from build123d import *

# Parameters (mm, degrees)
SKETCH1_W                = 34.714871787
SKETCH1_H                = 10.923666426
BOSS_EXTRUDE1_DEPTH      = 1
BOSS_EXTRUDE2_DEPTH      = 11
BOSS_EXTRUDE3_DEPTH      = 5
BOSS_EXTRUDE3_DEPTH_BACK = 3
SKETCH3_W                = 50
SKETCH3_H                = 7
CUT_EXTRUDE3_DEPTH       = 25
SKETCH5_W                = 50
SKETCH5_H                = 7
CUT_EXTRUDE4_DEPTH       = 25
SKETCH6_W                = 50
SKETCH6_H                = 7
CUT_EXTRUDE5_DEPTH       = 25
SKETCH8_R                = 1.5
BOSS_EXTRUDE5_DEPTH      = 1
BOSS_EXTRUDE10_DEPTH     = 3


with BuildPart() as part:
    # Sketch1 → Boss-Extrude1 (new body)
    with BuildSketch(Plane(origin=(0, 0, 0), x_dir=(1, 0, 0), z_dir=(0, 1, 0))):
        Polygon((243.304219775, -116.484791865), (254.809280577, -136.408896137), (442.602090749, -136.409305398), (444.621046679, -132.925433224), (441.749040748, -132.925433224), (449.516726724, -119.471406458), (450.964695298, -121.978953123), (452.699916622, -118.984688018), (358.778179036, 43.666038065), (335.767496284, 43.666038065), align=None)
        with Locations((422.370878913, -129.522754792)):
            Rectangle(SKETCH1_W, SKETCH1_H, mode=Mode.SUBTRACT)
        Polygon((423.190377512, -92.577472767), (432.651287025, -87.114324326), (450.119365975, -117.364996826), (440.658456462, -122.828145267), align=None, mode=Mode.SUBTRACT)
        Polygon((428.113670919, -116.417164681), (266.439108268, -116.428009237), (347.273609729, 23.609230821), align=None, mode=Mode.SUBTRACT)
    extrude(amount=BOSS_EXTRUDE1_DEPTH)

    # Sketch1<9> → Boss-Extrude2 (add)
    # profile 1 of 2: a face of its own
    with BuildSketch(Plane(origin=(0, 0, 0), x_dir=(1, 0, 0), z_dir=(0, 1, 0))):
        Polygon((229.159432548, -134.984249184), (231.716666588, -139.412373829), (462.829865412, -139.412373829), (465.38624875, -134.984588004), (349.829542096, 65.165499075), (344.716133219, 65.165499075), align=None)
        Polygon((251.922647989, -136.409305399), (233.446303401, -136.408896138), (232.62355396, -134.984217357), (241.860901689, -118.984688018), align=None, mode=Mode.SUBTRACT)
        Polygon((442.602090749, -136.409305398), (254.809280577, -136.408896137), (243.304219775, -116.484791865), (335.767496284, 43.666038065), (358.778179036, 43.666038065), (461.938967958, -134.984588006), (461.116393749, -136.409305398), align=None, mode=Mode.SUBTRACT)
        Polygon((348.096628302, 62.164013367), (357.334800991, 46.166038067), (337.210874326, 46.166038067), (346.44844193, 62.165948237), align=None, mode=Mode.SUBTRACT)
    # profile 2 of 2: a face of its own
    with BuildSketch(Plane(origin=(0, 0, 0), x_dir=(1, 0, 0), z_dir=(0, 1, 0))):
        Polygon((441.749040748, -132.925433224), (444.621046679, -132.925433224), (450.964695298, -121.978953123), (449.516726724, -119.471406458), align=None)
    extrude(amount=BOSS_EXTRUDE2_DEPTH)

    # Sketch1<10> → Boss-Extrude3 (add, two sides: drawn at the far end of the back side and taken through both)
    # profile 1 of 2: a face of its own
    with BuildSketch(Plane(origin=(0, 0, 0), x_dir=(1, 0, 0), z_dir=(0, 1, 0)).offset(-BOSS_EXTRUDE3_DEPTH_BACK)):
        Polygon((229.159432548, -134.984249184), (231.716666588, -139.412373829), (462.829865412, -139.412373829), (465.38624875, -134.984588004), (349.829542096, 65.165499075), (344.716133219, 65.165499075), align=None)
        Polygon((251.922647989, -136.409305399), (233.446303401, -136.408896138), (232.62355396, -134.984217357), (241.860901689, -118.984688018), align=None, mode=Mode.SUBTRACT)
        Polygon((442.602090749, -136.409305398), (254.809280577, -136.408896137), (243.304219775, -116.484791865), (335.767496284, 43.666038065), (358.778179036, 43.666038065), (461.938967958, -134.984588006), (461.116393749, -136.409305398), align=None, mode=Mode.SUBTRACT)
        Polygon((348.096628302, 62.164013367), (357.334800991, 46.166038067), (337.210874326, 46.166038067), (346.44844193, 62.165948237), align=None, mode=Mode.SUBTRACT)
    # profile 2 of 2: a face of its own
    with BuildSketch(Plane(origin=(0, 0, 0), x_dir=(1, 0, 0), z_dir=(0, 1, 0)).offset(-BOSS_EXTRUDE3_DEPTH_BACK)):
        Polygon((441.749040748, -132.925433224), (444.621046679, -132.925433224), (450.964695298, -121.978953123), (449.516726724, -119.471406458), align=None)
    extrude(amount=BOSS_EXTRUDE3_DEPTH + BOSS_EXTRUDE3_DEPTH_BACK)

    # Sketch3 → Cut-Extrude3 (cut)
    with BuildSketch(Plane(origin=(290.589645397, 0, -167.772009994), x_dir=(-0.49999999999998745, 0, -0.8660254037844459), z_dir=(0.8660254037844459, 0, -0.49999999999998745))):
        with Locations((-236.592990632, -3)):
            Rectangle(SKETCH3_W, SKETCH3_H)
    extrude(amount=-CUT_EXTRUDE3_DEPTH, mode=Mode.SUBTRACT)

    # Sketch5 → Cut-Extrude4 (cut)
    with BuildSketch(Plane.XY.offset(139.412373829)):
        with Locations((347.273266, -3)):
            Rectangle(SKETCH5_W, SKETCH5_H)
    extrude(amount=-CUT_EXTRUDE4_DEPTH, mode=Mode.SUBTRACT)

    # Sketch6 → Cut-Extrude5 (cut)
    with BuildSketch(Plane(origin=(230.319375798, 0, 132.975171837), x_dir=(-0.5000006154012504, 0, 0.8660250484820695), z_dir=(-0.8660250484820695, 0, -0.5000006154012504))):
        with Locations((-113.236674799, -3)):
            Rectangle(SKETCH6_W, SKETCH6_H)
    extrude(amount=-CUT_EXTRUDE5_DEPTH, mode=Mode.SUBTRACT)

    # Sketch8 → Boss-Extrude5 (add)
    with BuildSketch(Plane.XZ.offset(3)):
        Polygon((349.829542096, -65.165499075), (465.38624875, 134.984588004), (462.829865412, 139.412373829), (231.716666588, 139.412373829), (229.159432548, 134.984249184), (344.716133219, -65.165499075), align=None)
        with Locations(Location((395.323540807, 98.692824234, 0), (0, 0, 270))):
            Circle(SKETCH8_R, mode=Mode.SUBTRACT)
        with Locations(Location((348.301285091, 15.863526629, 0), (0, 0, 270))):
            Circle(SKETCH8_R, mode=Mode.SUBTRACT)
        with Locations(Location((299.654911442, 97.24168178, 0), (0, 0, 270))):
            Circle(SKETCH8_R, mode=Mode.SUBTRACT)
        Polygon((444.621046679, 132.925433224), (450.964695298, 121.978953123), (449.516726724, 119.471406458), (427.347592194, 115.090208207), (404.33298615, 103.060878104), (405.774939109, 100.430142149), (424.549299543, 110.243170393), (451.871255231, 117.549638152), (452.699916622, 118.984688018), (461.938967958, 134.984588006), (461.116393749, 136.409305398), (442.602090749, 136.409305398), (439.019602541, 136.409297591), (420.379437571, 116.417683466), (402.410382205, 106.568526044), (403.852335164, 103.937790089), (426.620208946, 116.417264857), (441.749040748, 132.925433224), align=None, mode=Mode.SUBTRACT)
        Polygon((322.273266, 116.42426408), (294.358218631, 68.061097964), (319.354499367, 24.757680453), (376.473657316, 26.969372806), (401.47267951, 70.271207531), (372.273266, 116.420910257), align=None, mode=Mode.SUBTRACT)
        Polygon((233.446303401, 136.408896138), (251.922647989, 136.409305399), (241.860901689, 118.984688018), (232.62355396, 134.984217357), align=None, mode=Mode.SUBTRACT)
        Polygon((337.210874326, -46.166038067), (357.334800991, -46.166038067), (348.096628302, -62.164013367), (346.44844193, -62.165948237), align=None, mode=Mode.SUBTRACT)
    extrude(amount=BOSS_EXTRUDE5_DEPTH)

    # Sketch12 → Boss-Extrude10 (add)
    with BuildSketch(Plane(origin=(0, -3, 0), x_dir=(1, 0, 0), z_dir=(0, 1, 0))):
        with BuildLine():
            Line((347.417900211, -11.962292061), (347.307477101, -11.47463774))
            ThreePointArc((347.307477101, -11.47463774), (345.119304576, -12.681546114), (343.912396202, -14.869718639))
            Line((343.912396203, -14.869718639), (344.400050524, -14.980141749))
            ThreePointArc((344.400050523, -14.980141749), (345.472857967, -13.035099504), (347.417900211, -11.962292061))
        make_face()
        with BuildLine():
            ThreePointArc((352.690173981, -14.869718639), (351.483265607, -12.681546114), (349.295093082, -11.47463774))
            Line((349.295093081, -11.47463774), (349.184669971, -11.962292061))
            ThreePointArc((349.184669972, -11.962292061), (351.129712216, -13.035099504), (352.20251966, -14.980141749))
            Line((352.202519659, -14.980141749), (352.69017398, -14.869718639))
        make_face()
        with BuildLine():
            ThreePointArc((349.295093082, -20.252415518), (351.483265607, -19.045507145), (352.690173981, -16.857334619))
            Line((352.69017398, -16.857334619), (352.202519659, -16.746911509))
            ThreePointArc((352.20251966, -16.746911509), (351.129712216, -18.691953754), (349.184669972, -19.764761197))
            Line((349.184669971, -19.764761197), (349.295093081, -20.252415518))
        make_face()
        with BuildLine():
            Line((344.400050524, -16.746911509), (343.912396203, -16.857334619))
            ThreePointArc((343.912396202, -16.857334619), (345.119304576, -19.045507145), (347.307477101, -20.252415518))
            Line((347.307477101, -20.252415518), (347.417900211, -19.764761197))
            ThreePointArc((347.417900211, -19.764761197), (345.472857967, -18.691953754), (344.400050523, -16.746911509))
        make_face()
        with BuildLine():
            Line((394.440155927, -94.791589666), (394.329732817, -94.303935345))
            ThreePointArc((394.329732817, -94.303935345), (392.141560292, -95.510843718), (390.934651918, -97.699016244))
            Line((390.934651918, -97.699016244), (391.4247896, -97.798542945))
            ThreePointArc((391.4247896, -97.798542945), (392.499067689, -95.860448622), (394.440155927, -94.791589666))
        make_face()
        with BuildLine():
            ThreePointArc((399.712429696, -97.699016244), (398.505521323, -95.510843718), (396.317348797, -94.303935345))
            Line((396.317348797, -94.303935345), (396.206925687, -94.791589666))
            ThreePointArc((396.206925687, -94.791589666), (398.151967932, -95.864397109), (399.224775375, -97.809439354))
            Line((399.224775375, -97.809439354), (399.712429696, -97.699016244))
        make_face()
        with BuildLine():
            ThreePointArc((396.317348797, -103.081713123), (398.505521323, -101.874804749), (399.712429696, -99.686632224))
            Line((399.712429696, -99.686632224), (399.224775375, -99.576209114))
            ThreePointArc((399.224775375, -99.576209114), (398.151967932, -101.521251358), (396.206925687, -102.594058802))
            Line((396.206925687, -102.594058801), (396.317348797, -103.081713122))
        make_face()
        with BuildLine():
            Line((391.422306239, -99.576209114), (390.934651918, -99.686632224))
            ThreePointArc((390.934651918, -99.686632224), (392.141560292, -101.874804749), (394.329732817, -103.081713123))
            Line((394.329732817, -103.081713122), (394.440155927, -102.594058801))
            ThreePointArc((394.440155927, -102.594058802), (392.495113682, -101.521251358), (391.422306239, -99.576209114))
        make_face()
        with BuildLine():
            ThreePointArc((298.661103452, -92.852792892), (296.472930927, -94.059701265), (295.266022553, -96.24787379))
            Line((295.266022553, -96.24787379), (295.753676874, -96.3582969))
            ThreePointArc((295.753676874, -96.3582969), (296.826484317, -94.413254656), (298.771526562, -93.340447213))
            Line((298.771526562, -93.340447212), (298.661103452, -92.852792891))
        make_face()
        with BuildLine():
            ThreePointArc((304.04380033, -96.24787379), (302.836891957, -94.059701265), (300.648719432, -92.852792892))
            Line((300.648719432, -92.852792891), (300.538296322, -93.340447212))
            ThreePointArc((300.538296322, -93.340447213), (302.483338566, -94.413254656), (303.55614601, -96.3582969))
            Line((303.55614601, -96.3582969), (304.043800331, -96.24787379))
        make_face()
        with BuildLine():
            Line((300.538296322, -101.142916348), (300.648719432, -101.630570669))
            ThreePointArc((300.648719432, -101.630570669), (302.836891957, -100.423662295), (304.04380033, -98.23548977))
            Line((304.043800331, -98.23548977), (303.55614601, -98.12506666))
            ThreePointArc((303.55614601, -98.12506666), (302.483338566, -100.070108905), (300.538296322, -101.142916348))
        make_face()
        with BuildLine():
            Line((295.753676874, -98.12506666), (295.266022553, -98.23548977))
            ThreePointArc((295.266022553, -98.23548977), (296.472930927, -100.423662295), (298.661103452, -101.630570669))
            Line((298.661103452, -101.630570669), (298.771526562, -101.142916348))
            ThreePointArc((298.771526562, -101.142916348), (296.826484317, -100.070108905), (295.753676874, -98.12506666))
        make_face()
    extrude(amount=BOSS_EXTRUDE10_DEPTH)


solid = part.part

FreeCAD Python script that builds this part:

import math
import FreeCAD as App
import Part
import Sketcher
Q = App.Units.Quantity


def add_polygon(sketch, points):
    """Adds a closed chain of lines whose ends are joined by coincident constraints."""
    first, n = sketch.GeometryCount, len(points)
    for a, b in zip(points, points[1:] + points[:1]):
        sketch.addGeometry(Part.LineSegment(App.Vector(*a, 0), App.Vector(*b, 0)), False)
    for i in range(n):
        sketch.addConstraint(Sketcher.Constraint("Coincident", first + i, 2, first + (i + 1) % n, 1))

doc = App.newDocument("Part")
body = doc.addObject("PartDesign::Body", "Body")

# Sketch on XZ plane
sketch1 = doc.addObject("Sketcher::SketchObject", "Sketch")
body.addObject(sketch1)
sketch1.AttachmentSupport = (doc.XZ_Plane, [""])
sketch1.MapMode = "FlatFace"
add_polygon(sketch1, [(243.30422, 116.484792), (254.809281, 136.408896), (442.602091, 136.409305), (444.621047, 132.925433), (441.749041, 132.925433), (449.516727, 119.471406), (450.964695, 121.978953), (452.699917, 118.984688), (358.778179, -43.666038), (335.767496, -43.666038)])  # lines 0-9
add_polygon(sketch1, [(439.728315, 134.984588), (405.013443, 134.984588), (405.013443, 124.060922), (439.728315, 124.060922)])  # lines 10-13
add_polygon(sketch1, [(440.658456, 122.828145), (423.190378, 92.577473), (432.651287, 87.114324), (450.119366, 117.364997)])  # lines 14-17
add_polygon(sketch1, [(347.27361, -23.609231), (428.113671, 116.417165), (266.439108, 116.428009)])  # lines 18-20
sketch1.addConstraint([
    Sketcher.Constraint("Horizontal", 3),
    Sketcher.Constraint("Horizontal", 8),
    Sketcher.Constraint("Horizontal", 10),
    Sketcher.Constraint("Vertical", 11),
    Sketcher.Constraint("Horizontal", 12),
    Sketcher.Constraint("Vertical", 13),
    Sketcher.Constraint("Parallel", 0, 5),
    Sketcher.Constraint("Parallel", 2, 6),
    Sketcher.Constraint("Parallel", 5, 7),
    Sketcher.Constraint("Parallel", 4, 9),
    Sketcher.Constraint("Parallel", 7, 14),
    Sketcher.Constraint("Perpendicular", 14, 15),
    Sketcher.Constraint("Perpendicular", 15, 16),
    Sketcher.Constraint("Perpendicular", 16, 17),
    Sketcher.Constraint("Angle", 4, Q("-60 deg")),
    Sketcher.Constraint("DistanceX", 10, 2, 10, 1, 34.714872),
    Sketcher.Constraint("DistanceY", 4, 2, 1, 2, 16.937899),
    Sketcher.Constraint("DistanceX", 8, 2, 5, 2, 115.197199),
    Sketcher.Constraint("Distance", 0, 23.007311),
    Sketcher.Constraint("Distance", 1, 187.79281),
    Sketcher.Constraint("Distance", 4, 15.535372),
    Sketcher.Constraint("Distance", 7, 187.82053),
    Sketcher.Constraint("Distance", 14, 34.93189),
    Sketcher.Constraint("Distance", 20, 161.693059),
    Sketcher.Constraint("DistanceX", 3, 2, 3, 1, 2.872006),
    Sketcher.Constraint("DistanceX", 8, 2, 8, 1, 23.010683),
    Sketcher.Constraint("DistanceY", 11, 2, 11, 1, 10.923666),
    Sketcher.Constraint("DistanceX", -1, 1, 0, 2, 254.809281),
    Sketcher.Constraint("DistanceX", -1, 1, 3, 2, 441.749041),
    Sketcher.Constraint("DistanceY", -1, 1, 6, 2, 118.984688),
    Sketcher.Constraint("DistanceX", -1, 1, 7, 2, 358.778179),
    Sketcher.Constraint("DistanceY", 7, 2, -1, 1, 43.666038),
    Sketcher.Constraint("DistanceY", -1, 1, 10, 2, 134.984588),
    Sketcher.Constraint("DistanceX", -1, 1, 18, 2, 428.113671),
    Sketcher.Constraint("DistanceX", -1, 1, 19, 2, 266.439108),
    Sketcher.Constraint("DistanceY", -1, 1, 19, 2, 116.428009),
    Sketcher.Constraint("DistanceX", -1, 1, 20, 2, 347.27361),
    Sketcher.Constraint("DistanceX", 12, 2, 2, 2, 4.892732),
    Sketcher.Constraint("DistanceY", 14, 2, 12, 2, 31.483449),
    Sketcher.Constraint("DistanceX", 14, 2, 4, 2, 26.326349),
    Sketcher.Constraint("DistanceX", 14, 2, 15, 2, 9.46091),
    Sketcher.Constraint("DistanceY", 18, 2, 17, 2, 6.410981),
])
pad1 = doc.addObject("PartDesign::Pad", "Pad")
body.addObject(pad1)
pad1.Profile = sketch1
pad1.Length = 1
pad1.Reversed = True

# Sketch on XZ plane
sketch2 = doc.addObject("Sketcher::SketchObject", "Sketch001")
body.addObject(sketch2)
sketch2.AttachmentSupport = (doc.XZ_Plane, [""])
sketch2.MapMode = "FlatFace"
add_polygon(sketch2, [(229.159433, 134.984249), (231.716667, 139.412374), (462.829865, 139.412374), (465.386249, 134.984588), (349.829542, -65.165499), (344.716133, -65.165499)])  # lines 0-5
add_polygon(sketch2, [(241.860902, 118.984688), (251.922648, 136.409305), (233.446303, 136.408896), (232.623554, 134.984217)])  # lines 6-9
add_polygon(sketch2, [(461.116394, 136.409305), (442.602091, 136.409305), (254.809281, 136.408896), (243.30422, 116.484792), (335.767496, -43.666038), (358.778179, -43.666038), (461.938968, 134.984588)])  # lines 10-16
add_polygon(sketch2, [(346.448442, -62.165948), (348.096628, -62.164013), (357.334801, -46.166038), (337.210874, -46.166038)])  # lines 17-20
add_polygon(sketch2, [(441.749041, 132.925433), (444.621047, 132.925433), (450.964695, 121.978953), (449.516727, 119.471406)])  # lines 21-24
sketch2.addConstraint([
    Sketcher.Constraint("Horizontal", 1),
    Sketcher.Constraint("Horizontal", 4),
    Sketcher.Constraint("Horizontal", 10),
    Sketcher.Constraint("Horizontal", 14),
    Sketcher.Constraint("Horizontal", 19),
    Sketcher.Constraint("Horizontal", 21),
    Sketcher.Constraint("DistanceY", 18, 2, 14, 2, 2.5),
    Sketcher.Constraint("DistanceX", 1, 1, 1, 2, 231.113199),
    Sketcher.Constraint("DistanceX", 4, 2, 4, 1, 5.113409),
    Sketcher.Constraint("DistanceY", 3, 2, -1, 1, 65.165499),
    Sketcher.Constraint("DistanceX", -1, 1, 9, 2, 241.860902),
    Sketcher.Constraint("DistanceX", -1, 1, 18, 2, 357.334801),
    Sketcher.Constraint("DistanceX", 5, 2, 4, 2, 115.556701),
    Sketcher.Constraint("DistanceX", 6, 2, 2, 2, 213.463601),
    Sketcher.Constraint("DistanceX", 7, 2, 9, 2, 8.414598),
    Sketcher.Constraint("DistanceX", 20, 2, 3, 2, 3.3811),
    Sketcher.Constraint("DistanceX", 22, 2, 16, 2, 10.151698),
    Sketcher.Constraint("DistanceY", 23, 2, 10, 2, 16.937899),
    Sketcher.Constraint("Distance", 11, 187.79281),
    Sketcher.Constraint("Distance", 12, 23.007311),
    Sketcher.Constraint("Distance", 16, 1.645129),
    Sketcher.Constraint("Distance", 18, 18.473739),
    Sketcher.Constraint("Distance", 22, 12.651771),
    Sketcher.Constraint("Distance", 24, 15.535372),
    Sketcher.Constraint("DistanceX", 10, 2, 10, 1, 18.514303),
    Sketcher.Constraint("DistanceX", 14, 1, 14, 2, 23.010683),
    Sketcher.Constraint("DistanceX", 19, 2, 19, 1, 20.123927),
    Sketcher.Constraint("DistanceX", 21, 1, 21, 2, 2.872006),
    Sketcher.Constraint("DistanceX", -1, 1, 2, 2, 465.386249),
    Sketcher.Constraint("DistanceY", -1, 1, 2, 2, 134.984588),
    Sketcher.Constraint("DistanceY", -1, 1, 5, 2, 134.984249),
    Sketcher.Constraint("DistanceY", -1, 1, 9, 2, 118.984688),
    Sketcher.Constraint("DistanceX", -1, 1, 10, 2, 442.602091),
    Sketcher.Constraint("DistanceX", -1, 1, 12, 2, 243.30422),
    Sketcher.Constraint("DistanceY", -1, 1, 12, 2, 116.484792),
    Sketcher.Constraint("DistanceY", 13, 2, -1, 1, 43.666038),
    Sketcher.Constraint("DistanceX", -1, 1, 14, 2, 358.778179),
    Sketcher.Constraint("DistanceY", -1, 1, 15, 2, 134.984588),
    Sketcher.Constraint("DistanceX", -1, 1, 17, 2, 348.096628),
    Sketcher.Constraint("DistanceX", -1, 1, 20, 2, 346.448442),
    Sketcher.Constraint("DistanceY", 20, 2, -1, 1, 62.165948),
    Sketcher.Constraint("DistanceX", -1, 1, 24, 2, 441.749041),
    Sketcher.Constraint("DistanceX", 0, 2, 6, 2, 20.205981),
    Sketcher.Constraint("DistanceY", 6, 2, 0, 2, 3.003068),
    Sketcher.Constraint("DistanceY", 7, 2, 6, 2, 0.000409),
    Sketcher.Constraint("DistanceX", 8, 2, 7, 2, 0.822749),
    Sketcher.Constraint("DistanceY", 8, 2, 7, 2, 1.424679),
    Sketcher.Constraint("DistanceY", 9, 2, 8, 2, 15.999529),
    Sketcher.Constraint("DistanceY", 10, 2, 1, 2, 3.003068),
    Sketcher.Constraint("DistanceY", 21, 2, 1, 2, 6.486941),
])
pad2 = doc.addObject("PartDesign::Pad", "Pad001")
body.addObject(pad2)
pad2.Profile = sketch2
pad2.Length = 11
pad2.Reversed = True

# Sketch on XZ plane
sketch3 = doc.addObject("Sketcher::SketchObject", "Sketch002")
body.addObject(sketch3)
sketch3.AttachmentSupport = (doc.XZ_Plane, [""])
sketch3.MapMode = "FlatFace"
add_polygon(sketch3, [(229.159433, 134.984249), (231.716667, 139.412374), (462.829865, 139.412374), (465.386249, 134.984588), (349.829542, -65.165499), (344.716133, -65.165499)])  # lines 0-5
add_polygon(sketch3, [(241.860902, 118.984688), (251.922648, 136.409305), (233.446303, 136.408896), (232.623554, 134.984217)])  # lines 6-9
add_polygon(sketch3, [(461.116394, 136.409305), (442.602091, 136.409305), (254.809281, 136.408896), (243.30422, 116.484792), (335.767496, -43.666038), (358.778179, -43.666038), (461.938968, 134.984588)])  # lines 10-16
add_polygon(sketch3, [(346.448442, -62.165948), (348.096628, -62.164013), (357.334801, -46.166038), (337.210874, -46.166038)])  # lines 17-20
add_polygon(sketch3, [(441.749041, 132.925433), (444.621047, 132.925433), (450.964695, 121.978953), (449.516727, 119.471406)])  # lines 21-24
sketch3.addConstraint([
    Sketcher.Constraint("Horizontal", 1),
    Sketcher.Constraint("Horizontal", 4),
    Sketcher.Constraint("Horizontal", 10),
    Sketcher.Constraint("Horizontal", 14),
    Sketcher.Constraint("Horizontal", 19),
    Sketcher.Constraint("Horizontal", 21),
    Sketcher.Constraint("DistanceY", 18, 2, 14, 2, 2.5),
    Sketcher.Constraint("DistanceX", 1, 1, 1, 2, 231.113199),
    Sketcher.Constraint("DistanceX", 4, 2, 4, 1, 5.113409),
    Sketcher.Constraint("DistanceY", 3, 2, -1, 1, 65.165499),
    Sketcher.Constraint("DistanceX", -1, 1, 9, 2, 241.860902),
    Sketcher.Constraint("DistanceX", -1, 1, 18, 2, 357.334801),
    Sketcher.Constraint("DistanceX", 5, 2, 4, 2, 115.556701),
    Sketcher.Constraint("DistanceX", 6, 2, 2, 2, 213.463601),
    Sketcher.Constraint("DistanceX", 7, 2, 9, 2, 8.414598),
    Sketcher.Constraint("DistanceX", 20, 2, 3, 2, 3.3811),
    Sketcher.Constraint("DistanceX", 22, 2, 16, 2, 10.151698),
    Sketcher.Constraint("DistanceY", 23, 2, 10, 2, 16.937899),
    Sketcher.Constraint("Distance", 11, 187.79281),
    Sketcher.Constraint("Distance", 12, 23.007311),
    Sketcher.Constraint("Distance", 16, 1.645129),
    Sketcher.Constraint("Distance", 18, 18.473739),
    Sketcher.Constraint("Distance", 22, 12.651771),
    Sketcher.Constraint("Distance", 24, 15.535372),
    Sketcher.Constraint("DistanceX", 10, 2, 10, 1, 18.514303),
    Sketcher.Constraint("DistanceX", 14, 1, 14, 2, 23.010683),
    Sketcher.Constraint("DistanceX", 19, 2, 19, 1, 20.123927),
    Sketcher.Constraint("DistanceX", 21, 1, 21, 2, 2.872006),
    Sketcher.Constraint("DistanceX", -1, 1, 2, 2, 465.386249),
    Sketcher.Constraint("DistanceY", -1, 1, 2, 2, 134.984588),
    Sketcher.Constraint("DistanceY", -1, 1, 5, 2, 134.984249),
    Sketcher.Constraint("DistanceY", -1, 1, 9, 2, 118.984688),
    Sketcher.Constraint("DistanceX", -1, 1, 10, 2, 442.602091),
    Sketcher.Constraint("DistanceX", -1, 1, 12, 2, 243.30422),
    Sketcher.Constraint("DistanceY", -1, 1, 12, 2, 116.484792),
    Sketcher.Constraint("DistanceY", 13, 2, -1, 1, 43.666038),
    Sketcher.Constraint("DistanceX", -1, 1, 14, 2, 358.778179),
    Sketcher.Constraint("DistanceY", -1, 1, 15, 2, 134.984588),
    Sketcher.Constraint("DistanceX", -1, 1, 17, 2, 348.096628),
    Sketcher.Constraint("DistanceX", -1, 1, 20, 2, 346.448442),
    Sketcher.Constraint("DistanceY", 20, 2, -1, 1, 62.165948),
    Sketcher.Constraint("DistanceX", -1, 1, 24, 2, 441.749041),
    Sketcher.Constraint("DistanceX", 0, 2, 6, 2, 20.205981),
    Sketcher.Constraint("DistanceY", 6, 2, 0, 2, 3.003068),
    Sketcher.Constraint("DistanceY", 7, 2, 6, 2, 0.000409),
    Sketcher.Constraint("DistanceX", 8, 2, 7, 2, 0.822749),
    Sketcher.Constraint("DistanceY", 8, 2, 7, 2, 1.424679),
    Sketcher.Constraint("DistanceY", 9, 2, 8, 2, 15.999529),
    Sketcher.Constraint("DistanceY", 10, 2, 1, 2, 3.003068),
    Sketcher.Constraint("DistanceY", 21, 2, 1, 2, 6.486941),
])
pad3 = doc.addObject("PartDesign::Pad", "Pad002")
body.addObject(pad3)
pad3.Profile = sketch3
pad3.Type = "TwoLengths"
pad3.Length = 5
pad3.Length2 = 3
pad3.Reversed = True

# Sketch on an angled plane
sketch4 = doc.addObject("Sketcher::SketchObject", "Sketch003")
body.addObject(sketch4)
sketch4.Placement = App.Placement(App.Vector(290.589645, 0, -167.77201), App.Rotation(App.Vector(-0.5, 0, -0.866025404), App.Vector(0, 1, 0), App.Vector(0.866025404, 0, -0.5), "ZXY"))
add_polygon(sketch4, [(-262, 0), (-262, -7), (-212, -7), (-212, 0)])  # lines 0-3
sketch4.addConstraint([
    Sketcher.Constraint("Vertical", 0),
    Sketcher.Constraint("Horizontal", 1),
    Sketcher.Constraint("Vertical", 2),
    Sketcher.Constraint("Horizontal", 3),
    Sketcher.Constraint("DistanceX", 1, 1, 1, 2, 50.0),
    Sketcher.Constraint("DistanceY", 0, 2, 0, 1, 7.0),
    Sketcher.Constraint("DistanceY", 0, 2, -1, 1, 6.5),
    Sketcher.Constraint("DistanceX", 0, 2, -1, 1, 261.592991),
])
pocket1 = doc.addObject("PartDesign::Pocket", "Pocket")
body.addObject(pocket1)
pocket1.Profile = sketch4
pocket1.Length = 25

# Sketch on XY plane
sketch5 = doc.addObject("Sketcher::SketchObject", "Sketch004")
body.addObject(sketch5)
sketch5.AttachmentSupport = (doc.XY_Plane, [""])
sketch5.MapMode = "FlatFace"
sketch5.AttachmentOffset = App.Placement(App.Vector(0, 0, 139.412374), App.Rotation())
add_polygon(sketch5, [(322, 0), (322, -6), (372, -6), (372, 0)])  # lines 0-3
sketch5.addConstraint([
    Sketcher.Constraint("Vertical", 0),
    Sketcher.Constraint("Horizontal", 1),
    Sketcher.Constraint("Vertical", 2),
    Sketcher.Constraint("Horizontal", 3),
    Sketcher.Constraint("DistanceX", 1, 1, 1, 2, 50.0),
    Sketcher.Constraint("DistanceY", 0, 2, 0, 1, 7.0),
    Sketcher.Constraint("DistanceY", 0, 2, -1, 1, 6.5),
    Sketcher.Constraint("DistanceX", -1, 1, 0, 2, 322.273266),
])
pocket2 = doc.addObject("PartDesign::Pocket", "Pocket001")
body.addObject(pocket2)
pocket2.Profile = sketch5
pocket2.Length = 25

# Sketch on an angled plane
sketch6 = doc.addObject("Sketcher::SketchObject", "Sketch005")
body.addObject(sketch6)
sketch6.Placement = App.Placement(App.Vector(230.319376, 0, 132.975172), App.Rotation(App.Vector(-0.500000615, 0, 0.866025048), App.Vector(0, 0.999999999, 0), App.Vector(-0.866025048, 0, -0.500000615), "ZXY"))
add_polygon(sketch6, [(-138, 0), (-138, -6), (-88, -6), (-88, 0)])  # lines 0-3
sketch6.addConstraint([
    Sketcher.Constraint("Vertical", 0),
    Sketcher.Constraint("Horizontal", 1),
    Sketcher.Constraint("Vertical", 2),
    Sketcher.Constraint("Horizontal", 3),
    Sketcher.Constraint("DistanceX", 1, 1, 1, 2, 50.0),
    Sketcher.Constraint("DistanceY", 0, 2, 0, 1, 7.0),
    Sketcher.Constraint("DistanceY", 0, 2, -1, 1, 6.5),
    Sketcher.Constraint("DistanceX", 0, 2, -1, 1, 138.236675),
])
pocket3 = doc.addObject("PartDesign::Pocket", "Pocket002")
body.addObject(pocket3)
pocket3.Profile = sketch6
pocket3.Length = 25

# Sketch on XZ plane
sketch7 = doc.addObject("Sketcher::SketchObject", "Sketch006")
body.addObject(sketch7)
sketch7.AttachmentSupport = (doc.XZ_Plane, [""])
sketch7.MapMode = "FlatFace"
sketch7.AttachmentOffset = App.Placement(App.Vector(0, 0, 3), App.Rotation())
add_polygon(sketch7, [(349.829542, -65.165499), (465.386249, 134.984588), (462.829865, 139.412374), (231.716667, 139.412374), (229.159433, 134.984249), (344.716133, -65.165499)])  # lines 0-5
add_polygon(sketch7, [(346.448442, -62.165948), (337.210874, -46.166038), (357.334801, -46.166038), (348.096628, -62.164013)])  # lines 6-9
sketch7.addGeometry(Part.Circle(App.Vector(348.301285, 15.863527, 0), App.Vector(0, 0, 1), 1.5), False)  # 10
add_polygon(sketch7, [(232.623554, 134.984217), (233.446303, 136.408896), (251.922648, 136.409305), (241.860902, 118.984688)])  # lines 11-14
sketch7.addGeometry(Part.Circle(App.Vector(299.654911, 97.241682, 0), App.Vector(0, 0, 1), 1.5), False)  # 15
add_polygon(sketch7, [(294.358219, 68.061098), (322.273266, 116.424264), (372.273266, 116.42091), (401.47268, 70.271208), (376.473657, 26.969373), (319.354499, 24.75768)])  # lines 16-21
sketch7.addGeometry(Part.Circle(App.Vector(395.323541, 98.692824, 0), App.Vector(0, 0, 1), 1.5), False)  # 22
add_polygon(sketch7, [(450.964695, 121.978953), (444.621047, 132.925433), (441.749041, 132.925433), (426.620209, 116.417265), (403.852335, 103.93779), (402.410382, 106.568526), (420.379438, 116.417683), (439.019603, 136.409298), (442.602091, 136.409305), (461.116394, 136.409305), (461.938968, 134.984588), (452.699917, 118.984688), (451.871255, 117.549638), (424.5493, 110.24317), (405.774939, 100.430142), (404.332986, 103.060878), (427.347592, 115.090208), (449.516727, 119.471406)])  # lines 23-40
sketch7.addConstraint([
    Sketcher.Constraint("Horizontal", 2),
    Sketcher.Constraint("Horizontal", 5),
    Sketcher.Constraint("Horizontal", 7),
    Sketcher.Constraint("Horizontal", 24),
    Sketcher.Constraint("Horizontal", 31),
    Sketcher.Constraint("Diameter", 10, 3.0),
    Sketcher.Constraint("Diameter", 15, 3.0),
    Sketcher.Constraint("Diameter", 22, 3.0),
    Sketcher.Constraint("Distance", 17, 50.0),
    Sketcher.Constraint("Distance", 19, 50.0),
    Sketcher.Constraint("Distance", 21, 50.0),
    Sketcher.Constraint("Distance", 27, 3.0),
    Sketcher.Constraint("Distance", 37, 3.0),
    Sketcher.Constraint("DistanceX", 2, 2, 2, 1, 231.113199),
    Sketcher.Constraint("DistanceX", 5, 2, 22, 3, 45.493999),
    Sketcher.Constraint("DistanceY", 20, 2, 15, 3, 72.484001),
    Sketcher.Constraint("DistanceX", 5, 1, 5, 2, 5.113409),
    Sketcher.Constraint("DistanceY", 4, 2, -1, 1, 65.165499),
    Sketcher.Constraint("DistanceX", -1, 1, 7, 2, 357.334801),
    Sketcher.Constraint("DistanceX", -1, 1, 13, 2, 241.860902),
    Sketcher.Constraint("DistanceX", -1, 1, 20, 2, 319.354499),
    Sketcher.Constraint("DistanceX", -1, 1, 35, 2, 424.5493),
    Sketcher.Constraint("DistanceX", 3, 2, 4, 2, 115.556701),
    Sketcher.Constraint("DistanceX", 9, 2, 5, 2, 3.3811),
    Sketcher.Constraint("DistanceX", 11, 2, 13, 2, 8.414598),
    Sketcher.Constraint("DistanceX", 17, 2, 1, 2, 90.556599),
    Sketcher.Constraint("DistanceX", 22, 3, 24, 2, 46.4255),
    Sketcher.Constraint("DistanceY", 22, 3, 27, 2, 7.875702),
    Sketcher.Constraint("DistanceY", 33, 2, 32, 2, 15.9999),
    Sketcher.Constraint("DistanceX", 22, 3, 36, 2, 10.451398),
    Sketcher.Constraint("DistanceX", 36, 2, 28, 2, 14.604498),
    Sketcher.Constraint("DistanceY", 39, 2, 30, 2, 16.937899),
    Sketcher.Constraint("Distance", 8, 18.473739),
    Sketcher.Constraint("Distance", 18, 54.611362),
    Sketcher.Constraint("Distance", 20, 57.161961),
    Sketcher.Constraint("Distance", 23, 12.651771),
    Sketcher.Constraint("Distance", 25, 22.391989),
    Sketcher.Constraint("Distance", 30, 3.582488),
    Sketcher.Constraint("Distance", 32, 1.645129),
    Sketcher.Constraint("Distance", 34, 1.65712),
    Sketcher.Constraint("Distance", 35, 28.282039),
    Sketcher.Constraint("DistanceX", 7, 1, 7, 2, 20.123927),
    Sketcher.Constraint("DistanceX", 24, 2, 24, 1, 2.872006),
    Sketcher.Constraint("DistanceX", 31, 1, 31, 2, 18.514303),
    Sketcher.Constraint("DistanceX", -1, 1, 15, 3, 299.654911),
    Sketcher.Constraint("DistanceY", -1, 1, 15, 3, 97.241682),
    Sketcher.Constraint("DistanceX", -1, 1, 22, 3, 395.323541),
    Sketcher.Constraint("DistanceX", -1, 1, 0, 2, 465.386249),
    Sketcher.Constraint("DistanceY", -1, 1, 0, 2, 134.984588),
    Sketcher.Constraint("DistanceY", -1, 1, 3, 2, 134.984249),
    Sketcher.Constraint("DistanceY", 6, 2, -1, 1, 46.166038),
    Sketcher.Constraint("DistanceX", -1, 1, 8, 2, 348.096628),
    Sketcher.Constraint("DistanceY", 9, 2, -1, 1, 62.165948),
    Sketcher.Constraint("DistanceY", -1, 1, 13, 2, 118.984688),
    Sketcher.Constraint("DistanceY", -1, 1, 17, 2, 116.42091),
    Sketcher.Constraint("DistanceX", -1, 1, 18, 2, 401.47268),
    Sketcher.Constraint("DistanceX", -1, 1, 21, 2, 294.358219),
    Sketcher.Constraint("DistanceX", -1, 1, 25, 2, 426.620209),
    Sketcher.Constraint("DistanceY", -1, 1, 26, 2, 103.93779),
    Sketcher.Constraint("DistanceX", -1, 1, 30, 2, 442.602091),
    Sketcher.Constraint("DistanceY", -1, 1, 32, 2, 134.984588),
    Sketcher.Constraint("DistanceY", -1, 1, 34, 2, 117.549638),
    Sketcher.Constraint("DistanceY", -1, 1, 35, 2, 110.24317),
    Sketcher.Constraint("DistanceY", -1, 1, 37, 2, 103.060878),
    Sketcher.Constraint("DistanceY", -1, 1, 38, 2, 115.090208),
    Sketcher.Constraint("DistanceY", 10, 3, 0, 2, 119.121061),
    Sketcher.Constraint("DistanceY", 22, 3, 1, 2, 40.71955),
    Sketcher.Constraint("DistanceX", 10, 3, 1, 2, 114.52858),
    Sketcher.Constraint("DistanceX", 4, 2, 10, 3, 3.585152),
    Sketcher.Constraint("DistanceY", 22, 3, 11, 2, 37.716072),
    Sketcher.Constraint("DistanceY", 10, 3, 11, 2, 120.54537),
    Sketcher.Constraint("DistanceY", 11, 2, 12, 2, 0.000409),
    Sketcher.Constraint("DistanceX", 2, 2, 12, 2, 20.205981),
    Sketcher.Constraint("DistanceX", 14, 2, 11, 2, 0.822749),
    Sketcher.Constraint("DistanceY", 14, 2, 11, 2, 1.424679),
    Sketcher.Constraint("DistanceY", 16, 2, 12, 2, 19.985041),
    Sketcher.Constraint("DistanceY", 23, 2, 1, 2, 6.486941),
    Sketcher.Constraint("DistanceX", 17, 2, 26, 2, 31.579069),
    Sketcher.Constraint("DistanceY", 25, 2, 28, 2, 0.000419),
    Sketcher.Constraint("DistanceY", 0, 2, 29, 2, 1.42471),
    Sketcher.Constraint("DistanceY", 30, 2, 1, 2, 3.003068),
    Sketcher.Constraint("DistanceY", 36, 2, 35, 2, 9.813028),
    Sketcher.Constraint("DistanceX", 38, 2, 24, 2, 14.401449),
    Sketcher.Constraint("DistanceX", 39, 2, 34, 2, 2.354529),
    Sketcher.Constraint("DistanceX", 39, 2, 40, 2, 1.447969),
])
pad4 = doc.addObject("PartDesign::Pad", "Pad003")
body.addObject(pad4)
pad4.Profile = sketch7
pad4.Length = 1

# Sketch on XZ plane
sketch8 = doc.addObject("Sketcher::SketchObject", "Sketch007")
body.addObject(sketch8)
sketch8.AttachmentSupport = (doc.XZ_Plane, [""])
sketch8.MapMode = "FlatFace"
sketch8.AttachmentOffset = App.Placement(App.Vector(0, 0, 3), App.Rotation())
sketch8.addGeometry([
    Part.LineSegment(App.Vector(347.4179, 11.962292, 0), App.Vector(347.307477, 11.474638, 0)),  # 0
    Part.ArcOfCircle(Part.Circle(App.Vector(348.301285, 15.863527, 0), App.Vector(0, 0, 1), 4.5), math.radians(-167.24126), math.radians(-102.75874)),  # 1
    Part.LineSegment(App.Vector(343.912396, 14.869719, 0), App.Vector(344.400051, 14.980142, 0)),  # 2
    Part.ArcOfCircle(Part.Circle(App.Vector(348.301285, 15.863527, 0), App.Vector(0, 0, 1), 4), math.radians(-167.24126), math.radians(-102.75874)),  # 3
    Part.ArcOfCircle(Part.Circle(App.Vector(348.301285, 15.863527, 0), App.Vector(0, 0, 1), 4.5), math.radians(-77.24126), math.radians(-12.75874)),  # 4
    Part.LineSegment(App.Vector(349.295093, 11.474638, 0), App.Vector(349.18467, 11.962292, 0)),  # 5
    Part.ArcOfCircle(Part.Circle(App.Vector(348.301285, 15.863527, 0), App.Vector(0, 0, 1), 4), math.radians(-77.24126), math.radians(-12.75874)),  # 6
    Part.LineSegment(App.Vector(352.20252, 14.980142, 0), App.Vector(352.690174, 14.869719, 0)),  # 7
    Part.ArcOfCircle(Part.Circle(App.Vector(348.301285, 15.863527, 0), App.Vector(0, 0, 1), 4.5), math.radians(12.75874), math.radians(77.24126)),  # 8
    Part.LineSegment(App.Vector(352.690174, 16.857335, 0), App.Vector(352.20252, 16.746912, 0)),  # 9
    Part.ArcOfCircle(Part.Circle(App.Vector(348.301285, 15.863527, 0), App.Vector(0, 0, 1), 4), math.radians(12.75874), math.radians(77.24126)),  # 10
    Part.LineSegment(App.Vector(349.18467, 19.764761, 0), App.Vector(349.295093, 20.252416, 0)),  # 11
    Part.LineSegment(App.Vector(344.400051, 16.746912, 0), App.Vector(343.912396, 16.857335, 0)),  # 12
    Part.ArcOfCircle(Part.Circle(App.Vector(348.301285, 15.863527, 0), App.Vector(0, 0, 1), 4.5), math.radians(102.75874), math.radians(167.24126)),  # 13
    Part.LineSegment(App.Vector(347.307477, 20.252416, 0), App.Vector(347.4179, 19.764761, 0)),  # 14
    Part.ArcOfCircle(Part.Circle(App.Vector(348.301285, 15.863527, 0), App.Vector(0, 0, 1), 4), math.radians(102.75874), math.radians(167.24126)),  # 15
    Part.LineSegment(App.Vector(394.440156, 94.79159, 0), App.Vector(394.329733, 94.303935, 0)),  # 16
    Part.ArcOfCircle(Part.Circle(App.Vector(395.323541, 98.692824, 0), App.Vector(0, 0, 1), 4.5), math.radians(-167.24126), math.radians(-102.75874)),  # 17
    Part.LineSegment(App.Vector(390.934652, 97.699016, 0), App.Vector(391.42479, 97.798543, 0)),  # 18
    Part.ArcOfCircle(Part.Circle(App.Vector(395.323541, 98.692824, 0), App.Vector(0, 0, 1), 4), math.radians(-167.081178), math.radians(-102.75874)),  # 19
    Part.ArcOfCircle(Part.Circle(App.Vector(395.323541, 98.692824, 0), App.Vector(0, 0, 1), 4.5), math.radians(-77.24126), math.radians(-12.75874)),  # 20
    Part.LineSegment(App.Vector(396.317349, 94.303935, 0), App.Vector(396.206926, 94.79159, 0)),  # 21
    Part.ArcOfCircle(Part.Circle(App.Vector(395.323541, 98.692824, 0), App.Vector(0, 0, 1), 4), math.radians(-77.24126), math.radians(-12.75874)),  # 22
    Part.LineSegment(App.Vector(399.224775, 97.809439, 0), App.Vector(399.71243, 97.699016, 0)),  # 23
    Part.ArcOfCircle(Part.Circle(App.Vector(395.323541, 98.692824, 0), App.Vector(0, 0, 1), 4.5), math.radians(12.75874), math.radians(77.24126)),  # 24
    Part.LineSegment(App.Vector(399.71243, 99.686632, 0), App.Vector(399.224775, 99.576209, 0)),  # 25
    Part.ArcOfCircle(Part.Circle(App.Vector(395.323541, 98.692824, 0), App.Vector(0, 0, 1), 4), math.radians(12.75874), math.radians(77.24126)),  # 26
    Part.LineSegment(App.Vector(396.206926, 102.594059, 0), App.Vector(396.317349, 103.081713, 0)),  # 27
    Part.LineSegment(App.Vector(391.422306, 99.576209, 0), App.Vector(390.934652, 99.686632, 0)),  # 28
    Part.ArcOfCircle(Part.Circle(App.Vector(395.323541, 98.692824, 0), App.Vector(0, 0, 1), 4.5), math.radians(102.75874), math.radians(167.24126)),  # 29
    Part.LineSegment(App.Vector(394.329733, 103.081713, 0), App.Vector(394.440156, 102.594059, 0)),  # 30
    Part.ArcOfCircle(Part.Circle(App.Vector(395.323541, 98.692824, 0), App.Vector(0, 0, 1), 4), math.radians(102.75874), math.radians(167.24126)),  # 31
    Part.ArcOfCircle(Part.Circle(App.Vector(299.654911, 97.241682, 0), App.Vector(0, 0, 1), 4.5), math.radians(-167.24126), math.radians(-102.75874)),  # 32
    Part.LineSegment(App.Vector(295.266023, 96.247874, 0), App.Vector(295.753677, 96.358297, 0)),  # 33
    Part.ArcOfCircle(Part.Circle(App.Vector(299.654911, 97.241682, 0), App.Vector(0, 0, 1), 4), math.radians(-167.24126), math.radians(-102.75874)),  # 34
    Part.LineSegment(App.Vector(298.771527, 93.340447, 0), App.Vector(298.661103, 92.852793, 0)),  # 35
    Part.ArcOfCircle(Part.Circle(App.Vector(299.654911, 97.241682, 0), App.Vector(0, 0, 1), 4.5), math.radians(-77.24126), math.radians(-12.75874)),  # 36
    Part.LineSegment(App.Vector(300.648719, 92.852793, 0), App.Vector(300.538296, 93.340447, 0)),  # 37
    Part.ArcOfCircle(Part.Circle(App.Vector(299.654911, 97.241682, 0), App.Vector(0, 0, 1), 4), math.radians(-77.24126), math.radians(-12.75874)),  # 38
    Part.LineSegment(App.Vector(303.556146, 96.358297, 0), App.Vector(304.0438, 96.247874, 0)),  # 39
    Part.LineSegment(App.Vector(300.538296, 101.142916, 0), App.Vector(300.648719, 101.630571, 0)),  # 40
    Part.ArcOfCircle(Part.Circle(App.Vector(299.654911, 97.241682, 0), App.Vector(0, 0, 1), 4.5), math.radians(12.75874), math.radians(77.24126)),  # 41
    Part.LineSegment(App.Vector(304.0438, 98.23549, 0), App.Vector(303.556146, 98.125067, 0)),  # 42
    Part.ArcOfCircle(Part.Circle(App.Vector(299.654911, 97.241682, 0), App.Vector(0, 0, 1), 4), math.radians(12.75874), math.radians(77.24126)),  # 43
    Part.LineSegment(App.Vector(295.753677, 98.125067, 0), App.Vector(295.266023, 98.23549, 0)),  # 44
    Part.ArcOfCircle(Part.Circle(App.Vector(299.654911, 97.241682, 0), App.Vector(0, 0, 1), 4.5), math.radians(102.75874), math.radians(167.24126)),  # 45
    Part.LineSegment(App.Vector(298.661103, 101.630571, 0), App.Vector(298.771527, 101.142916, 0)),  # 46
    Part.ArcOfCircle(Part.Circle(App.Vector(299.654911, 97.241682, 0), App.Vector(0, 0, 1), 4), math.radians(102.75874), math.radians(167.24126)),  # 47
], False)
sketch8.addConstraint([
    Sketcher.Constraint("Coincident", 0, 2, 1, 2),
    Sketcher.Constraint("Coincident", 1, 1, 2, 1),
    Sketcher.Constraint("Coincident", 2, 2, 3, 1),
    Sketcher.Constraint("Coincident", 3, 2, 0, 1),
    Sketcher.Constraint("Coincident", 4, 1, 5, 1),
    Sketcher.Constraint("Coincident", 5, 2, 6, 1),
    Sketcher.Constraint("Coincident", 6, 2, 7, 1),
    Sketcher.Constraint("Coincident", 7, 2, 4, 2),
    Sketcher.Constraint("Coincident", 8, 1, 9, 1),
    Sketcher.Constraint("Coincident", 9, 2, 10, 1),
    Sketcher.Constraint("Coincident", 10, 2, 11, 1),
    Sketcher.Constraint("Coincident", 11, 2, 8, 2),
    Sketcher.Constraint("Coincident", 12, 2, 13, 2),
    Sketcher.Constraint("Coincident", 13, 1, 14, 1),
    Sketcher.Constraint("Coincident", 14, 2, 15, 1),
    Sketcher.Constraint("Coincident", 15, 2, 12, 1),
    Sketcher.Constraint("Coincident", 16, 2, 17, 2),
    Sketcher.Constraint("Coincident", 17, 1, 18, 1),
    Sketcher.Constraint("Coincident", 18, 2, 19, 1),
    Sketcher.Constraint("Coincident", 19, 2, 16, 1),
    Sketcher.Constraint("Coincident", 20, 1, 21, 1),
    Sketcher.Constraint("Coincident", 21, 2, 22, 1),
    Sketcher.Constraint("Coincident", 22, 2, 23, 1),
    Sketcher.Constraint("Coincident", 23, 2, 20, 2),
    Sketcher.Constraint("Coincident", 24, 1, 25, 1),
    Sketcher.Constraint("Coincident", 25, 2, 26, 1),
    Sketcher.Constraint("Coincident", 26, 2, 27, 1),
    Sketcher.Constraint("Coincident", 27, 2, 24, 2),
    Sketcher.Constraint("Coincident", 28, 2, 29, 2),
    Sketcher.Constraint("Coincident", 29, 1, 30, 1),
    Sketcher.Constraint("Coincident", 30, 2, 31, 1),
    Sketcher.Constraint("Coincident", 31, 2, 28, 1),
    Sketcher.Constraint("Coincident", 32, 1, 33, 1),
    Sketcher.Constraint("Coincident", 33, 2, 34, 1),
    Sketcher.Constraint("Coincident", 34, 2, 35, 1),
    Sketcher.Constraint("Coincident", 35, 2, 32, 2),
    Sketcher.Constraint("Coincident", 36, 1, 37, 1),
    Sketcher.Constraint("Coincident", 37, 2, 38, 1),
    Sketcher.Constraint("Coincident", 38, 2, 39, 1),
    Sketcher.Constraint("Coincident", 39, 2, 36, 2),
    Sketcher.Constraint("Coincident", 40, 2, 41, 2),
    Sketcher.Constraint("Coincident", 41, 1, 42, 1),
    Sketcher.Constraint("Coincident", 42, 2, 43, 1),
    Sketcher.Constraint("Coincident", 43, 2, 40, 1),
    Sketcher.Constraint("Coincident", 44, 2, 45, 2),
    Sketcher.Constraint("Coincident", 45, 1, 46, 1),
    Sketcher.Constraint("Coincident", 46, 2, 47, 1),
    Sketcher.Constraint("Coincident", 47, 2, 44, 1),
    Sketcher.Constraint("Coincident", 3, 3, 1, 3),
    Sketcher.Constraint("Coincident", 4, 3, 1, 3),
    Sketcher.Constraint("Coincident", 6, 3, 1, 3),
    Sketcher.Constraint("Coincident", 8, 3, 1, 3),
    Sketcher.Constraint("Coincident", 10, 3, 1, 3),
    Sketcher.Constraint("Coincident", 13, 3, 1, 3),
    Sketcher.Constraint("Coincident", 15, 3, 1, 3),
    Sketcher.Constraint("Coincident", 19, 3, 17, 3),
    Sketcher.Constraint("Coincident", 20, 3, 17, 3),
    Sketcher.Constraint("Coincident", 22, 3, 17, 3),
    Sketcher.Constraint("Coincident", 24, 3, 17, 3),
    Sketcher.Constraint("Coincident", 26, 3, 17, 3),
    Sketcher.Constraint("Coincident", 29, 3, 17, 3),
    Sketcher.Constraint("Coincident", 31, 3, 17, 3),
    Sketcher.Constraint("Coincident", 34, 3, 32, 3),
    Sketcher.Constraint("Coincident", 36, 3, 32, 3),
    Sketcher.Constraint("Coincident", 38, 3, 32, 3),
    Sketcher.Constraint("Coincident", 41, 3, 32, 3),
    Sketcher.Constraint("Coincident", 43, 3, 32, 3),
    Sketcher.Constraint("Coincident", 45, 3, 32, 3),
    Sketcher.Constraint("Coincident", 47, 3, 32, 3),
    Sketcher.Constraint("Radius", 3, 4.0),
    Sketcher.Constraint("Radius", 6, 4.0),
    Sketcher.Constraint("Radius", 10, 4.0),
    Sketcher.Constraint("Radius", 15, 4.0),
    Sketcher.Constraint("Radius", 19, 4.0),
    Sketcher.Constraint("Radius", 22, 4.0),
    Sketcher.Constraint("Radius", 26, 4.0),
    Sketcher.Constraint("Radius", 31, 4.0),
    Sketcher.Constraint("Radius", 34, 4.0),
    Sketcher.Constraint("Radius", 38, 4.0),
    Sketcher.Constraint("Radius", 43, 4.0),
    Sketcher.Constraint("Radius", 47, 4.0),
    Sketcher.Constraint("Radius", 1, 4.5),
    Sketcher.Constraint("Radius", 4, 4.5),
    Sketcher.Constraint("Radius", 8, 4.5),
    Sketcher.Constraint("Radius", 13, 4.5),
    Sketcher.Constraint("Radius", 17, 4.5),
    Sketcher.Constraint("Radius", 20, 4.5),
    Sketcher.Constraint("Radius", 24, 4.5),
    Sketcher.Constraint("Radius", 29, 4.5),
    Sketcher.Constraint("Radius", 32, 4.5),
    Sketcher.Constraint("Radius", 36, 4.5),
    Sketcher.Constraint("Radius", 41, 4.5),
    Sketcher.Constraint("Radius", 45, 4.5),
    Sketcher.Constraint("DistanceX", -1, 1, 3, 2, 347.4179),
    Sketcher.Constraint("DistanceX", -1, 1, 14, 2, 347.4179),
    Sketcher.Constraint("DistanceX", -1, 1, 39, 2, 304.0438),
    Sketcher.Constraint("DistanceX", -1, 1, 41, 1, 304.0438),
    Sketcher.Constraint("Distance", 18, 0.50014),
    Sketcher.Constraint("DistanceX", -1, 1, 17, 3, 395.323541),
    Sketcher.Constraint("DistanceX", -1, 1, 32, 3, 299.654911),
    Sketcher.Constraint("DistanceY", -1, 1, 32, 3, 97.241682),
    Sketcher.Constraint("DistanceY", -1, 1, 1, 1, 14.869719),
    Sketcher.Constraint("DistanceX", -1, 1, 2, 2, 344.400051),
    Sketcher.Constraint("DistanceY", -1, 1, 2, 2, 14.980142),
    Sketcher.Constraint("DistanceX", -1, 1, 5, 2, 349.18467),
    Sketcher.Constraint("DistanceX", -1, 1, 6, 2, 352.20252),
    Sketcher.Constraint("DistanceY", -1, 1, 6, 2, 14.980142),
    Sketcher.Constraint("DistanceY", -1, 1, 7, 2, 14.869719),
    Sketcher.Constraint("DistanceX", -1, 1, 9, 2, 352.20252),
    Sketcher.Constraint("DistanceX", -1, 1, 10, 2, 349.18467),
    Sketcher.Constraint("DistanceX", -1, 1, 15, 2, 344.400051),
    Sketcher.Constraint("DistanceX", -1, 1, 17, 1, 390.934652),
    Sketcher.Constraint("DistanceY", -1, 1, 19, 2, 94.79159),
    Sketcher.Constraint("DistanceX", -1, 1, 20, 1, 396.317349),
    Sketcher.Constraint("DistanceY", -1, 1, 21, 2, 94.79159),
    Sketcher.Constraint("DistanceY", -1, 1, 22, 2, 97.809439),
    Sketcher.Constraint("DistanceX", -1, 1, 23, 2, 399.71243),
    Sketcher.Constraint("DistanceX", -1, 1, 24, 1, 399.71243),
    Sketcher.Constraint("DistanceY", -1, 1, 25, 2, 99.576209),
    Sketcher.Constraint("DistanceY", -1, 1, 26, 2, 102.594059),
    Sketcher.Constraint("DistanceX", -1, 1, 27, 2, 396.317349),
    Sketcher.Constraint("DistanceX", -1, 1, 28, 2, 390.934652),
    Sketcher.Constraint("DistanceY", -1, 1, 30, 2, 102.594059),
    Sketcher.Constraint("DistanceY", -1, 1, 31, 2, 99.576209),
    Sketcher.Constraint("DistanceX", -1, 1, 36, 1, 300.648719),
    Sketcher.Constraint("DistanceX", -1, 1, 40, 2, 300.648719),
    Sketcher.Constraint("DistanceY", -1, 1, 44, 2, 98.23549),
    Sketcher.Constraint("DistanceY", -1, 1, 45, 1, 101.630571),
    Sketcher.Constraint("DistanceY", -1, 1, 17, 3, 98.692824),
    Sketcher.Constraint("DistanceX", -1, 1, 0, 2, 347.307477),
    Sketcher.Constraint("DistanceX", -1, 1, 4, 1, 349.295093),
    Sketcher.Constraint("DistanceX", -1, 1, 8, 1, 352.690174),
    Sketcher.Constraint("DistanceX", -1, 1, 11, 2, 349.295093),
    Sketcher.Constraint("DistanceX", -1, 1, 12, 2, 343.912396),
    Sketcher.Constraint("DistanceX", -1, 1, 13, 1, 347.307477),
    Sketcher.Constraint("DistanceX", -1, 1, 16, 2, 394.329733),
    Sketcher.Constraint("DistanceX", -1, 1, 29, 1, 394.329733),
    Sketcher.Constraint("DistanceX", -1, 1, 32, 1, 295.266023),
    Sketcher.Constraint("DistanceX", -1, 1, 33, 2, 295.753677),
    Sketcher.Constraint("DistanceX", -1, 1, 34, 2, 298.771527),
    Sketcher.Constraint("DistanceX", -1, 1, 35, 2, 298.661103),
    Sketcher.Constraint("DistanceX", -1, 1, 37, 2, 300.538296),
    Sketcher.Constraint("DistanceX", -1, 1, 38, 2, 303.556146),
    Sketcher.Constraint("DistanceX", -1, 1, 42, 2, 303.556146),
    Sketcher.Constraint("DistanceX", -1, 1, 43, 2, 300.538296),
    Sketcher.Constraint("DistanceX", -1, 1, 46, 2, 298.771527),
    Sketcher.Constraint("DistanceX", -1, 1, 47, 2, 295.753677),
])
pad5 = doc.addObject("PartDesign::Pad", "Pad004")
body.addObject(pad5)
pad5.Profile = sketch8
pad5.Length = 3
pad5.Reversed = True

doc.recompute()
